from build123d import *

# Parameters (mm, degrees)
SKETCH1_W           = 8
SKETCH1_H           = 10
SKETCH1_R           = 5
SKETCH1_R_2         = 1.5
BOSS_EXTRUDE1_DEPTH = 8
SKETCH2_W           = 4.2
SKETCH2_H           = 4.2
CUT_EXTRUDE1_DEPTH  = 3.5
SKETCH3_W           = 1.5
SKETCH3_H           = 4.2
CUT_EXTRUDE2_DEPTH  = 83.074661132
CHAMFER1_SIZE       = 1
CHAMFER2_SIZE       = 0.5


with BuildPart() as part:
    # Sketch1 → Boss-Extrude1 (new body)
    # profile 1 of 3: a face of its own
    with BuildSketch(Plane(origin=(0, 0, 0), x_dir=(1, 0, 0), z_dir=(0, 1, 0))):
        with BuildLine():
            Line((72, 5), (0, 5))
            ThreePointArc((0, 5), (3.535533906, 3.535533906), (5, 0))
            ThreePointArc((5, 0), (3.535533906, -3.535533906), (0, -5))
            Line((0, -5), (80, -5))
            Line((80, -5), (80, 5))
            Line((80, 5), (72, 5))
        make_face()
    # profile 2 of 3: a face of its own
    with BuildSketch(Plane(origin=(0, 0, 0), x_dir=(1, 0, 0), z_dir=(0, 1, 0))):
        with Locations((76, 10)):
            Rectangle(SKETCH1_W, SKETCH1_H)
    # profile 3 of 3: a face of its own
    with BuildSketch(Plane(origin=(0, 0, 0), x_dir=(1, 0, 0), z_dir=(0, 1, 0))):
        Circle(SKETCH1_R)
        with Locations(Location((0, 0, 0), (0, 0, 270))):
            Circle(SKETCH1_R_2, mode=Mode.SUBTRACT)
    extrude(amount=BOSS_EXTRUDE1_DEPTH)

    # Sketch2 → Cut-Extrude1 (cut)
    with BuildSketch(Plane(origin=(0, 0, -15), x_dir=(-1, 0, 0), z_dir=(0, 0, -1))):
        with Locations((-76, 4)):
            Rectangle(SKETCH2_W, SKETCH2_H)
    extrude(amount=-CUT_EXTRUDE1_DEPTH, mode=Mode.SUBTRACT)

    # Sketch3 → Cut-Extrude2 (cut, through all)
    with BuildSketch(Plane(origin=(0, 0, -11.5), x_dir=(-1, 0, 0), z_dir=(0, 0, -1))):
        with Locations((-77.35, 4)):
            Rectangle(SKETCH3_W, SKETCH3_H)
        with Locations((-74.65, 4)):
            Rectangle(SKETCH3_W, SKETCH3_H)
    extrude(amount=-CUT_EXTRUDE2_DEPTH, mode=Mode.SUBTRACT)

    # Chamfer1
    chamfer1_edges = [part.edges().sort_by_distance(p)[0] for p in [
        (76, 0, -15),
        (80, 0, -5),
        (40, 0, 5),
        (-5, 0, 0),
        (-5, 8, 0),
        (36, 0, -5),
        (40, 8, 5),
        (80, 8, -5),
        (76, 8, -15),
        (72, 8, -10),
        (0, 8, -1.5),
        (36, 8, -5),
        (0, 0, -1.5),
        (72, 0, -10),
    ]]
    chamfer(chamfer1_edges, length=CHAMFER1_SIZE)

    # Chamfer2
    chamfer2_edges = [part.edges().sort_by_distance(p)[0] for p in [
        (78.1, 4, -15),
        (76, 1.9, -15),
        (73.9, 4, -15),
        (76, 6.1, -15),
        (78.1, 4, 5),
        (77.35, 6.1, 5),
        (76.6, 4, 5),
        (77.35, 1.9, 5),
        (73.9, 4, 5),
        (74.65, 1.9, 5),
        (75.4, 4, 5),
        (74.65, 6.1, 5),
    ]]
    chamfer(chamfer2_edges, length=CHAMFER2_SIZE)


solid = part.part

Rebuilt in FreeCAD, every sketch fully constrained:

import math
import FreeCAD as App
import Part
import Sketcher

V = App.Vector


def edges_at(feature, points):
    """Names of the edges that pass closest to the given points."""
    edges = feature.Shape.Edges
    near = lambda p: min(range(len(edges)), key=lambda i: edges[i].distToShape(Part.Vertex(*p))[0])
    return sorted({f"Edge{near(p) + 1}" for p in points})


def add_polygon(sketch, points):
    """Adds a closed chain of lines whose ends are joined by coincident constraints."""
    first, n = sketch.GeometryCount, len(points)
    for a, b in zip(points, points[1:] + points[:1]):
        sketch.addGeometry(Part.LineSegment(App.Vector(*a, 0), App.Vector(*b, 0)), False)
    for i in range(n):
        sketch.addConstraint(Sketcher.Constraint("Coincident", first + i, 2, first + (i + 1) % n, 1))

doc = App.newDocument("Part")
body = doc.addObject("PartDesign::Body", "Body")

sketch1 = doc.addObject("Sketcher::SketchObject", "Sketch")
body.addObject(sketch1)
sketch1.AttachmentSupport = (doc.XZ_Plane, [""])
sketch1.MapMode = "FlatFace"
sketch1.addGeometry([
    Part.LineSegment(V(0, 5, 0), V(80, 5, 0)),
    Part.LineSegment(V(80, 5, 0), V(80, -15, 0)),
    Part.LineSegment(V(80, -15, 0), V(72, -15, 0)),
    Part.LineSegment(V(72, -15, 0), V(72, -5, 0)),
    Part.LineSegment(V(72, -5, 0), V(0, -5, 0)),
    Part.ArcOfCircle(Part.Circle(V(0, 0, 0), V(0, 0, 1), 5), math.radians(90), math.radians(270)),
    Part.Circle(V(0, 0, 0), V(0, 0, 1), 1.5),
], False)
sketch1.addConstraint([
    Sketcher.Constraint("Coincident", 0, 2, 1, 1),
    Sketcher.Constraint("Coincident", 1, 2, 2, 1),
    Sketcher.Constraint("Coincident", 2, 2, 3, 1),
    Sketcher.Constraint("Coincident", 3, 2, 4, 1),
    Sketcher.Constraint("Tangent", 4, 2, 5, 2),
    Sketcher.Constraint("Tangent", 5, 1, 0, 1),
    Sketcher.Constraint("Horizontal", 0),
    Sketcher.Constraint("Vertical", 1),
    Sketcher.Constraint("Horizontal", 2),
    Sketcher.Constraint("Vertical", 3),
    Sketcher.Constraint("Horizontal", 4),
    Sketcher.Constraint("Coincident", 5, 3, -1, 1),
    Sketcher.Constraint("Coincident", 6, 3, -1, 1),
    Sketcher.Constraint("Diameter", 6, 3.0),
    Sketcher.Constraint("Radius", 5, 5.0),
    Sketcher.Constraint("DistanceX", 0, 1, 0, 2, 80.0),
    Sketcher.Constraint("DistanceX", 2, 2, 2, 1, 8.0),
    Sketcher.Constraint("DistanceY", 1, 2, 1, 1, 20.0),
])
pad1 = doc.addObject("PartDesign::Pad", "Pad")
body.addObject(pad1)
pad1.Profile = sketch1
pad1.Length = 8
pad1.Reversed = True

sketch2 = doc.addObject("Sketcher::SketchObject", "Sketch001")
body.addObject(sketch2)
sketch2.AttachmentSupport = (doc.XY_Plane, [""])
sketch2.MapMode = "FlatFace"
sketch2.AttachmentOffset = App.Placement(V(0, 0, -15), App.Rotation())
add_polygon(sketch2, [(78.1, 6.1), (78.1, 1.9), (73.9, 1.9), (73.9, 6.1)])
sketch2.addConstraint([
    Sketcher.Constraint("Vertical", 0),
    Sketcher.Constraint("Horizontal", 1),
    Sketcher.Constraint("Vertical", 2),
    Sketcher.Constraint("Horizontal", 3),
    Sketcher.Constraint("Equal", 3, 0),
    Sketcher.Constraint("DistanceX", 1, 2, 1, 1, 4.2),
    Sketcher.Constraint("DistanceX", -1, 1, 0, 2, 78.1),
    Sketcher.Constraint("DistanceY", -1, 1, 0, 2, 1.9),
])
pocket1 = doc.addObject("PartDesign::Pocket", "Pocket")
body.addObject(pocket1)
pocket1.Profile = sketch2
pocket1.Length = 3.5
pocket1.Reversed = True

sketch3 = doc.addObject("Sketcher::SketchObject", "Sketch002")
body.addObject(sketch3)
sketch3.AttachmentSupport = (doc.XY_Plane, [""])
sketch3.MapMode = "FlatFace"
sketch3.AttachmentOffset = App.Placement(V(0, 0, -11.5), App.Rotation())
add_polygon(sketch3, [(78.1, 6.1), (78.1, 1.9), (76.6, 1.9), (76.6, 6.1)])
add_polygon(sketch3, [(75.4, 6.1), (75.4, 1.9), (73.9, 1.9), (73.9, 6.1)])
sketch3.addConstraint([
    Sketcher.Constraint("Vertical", 0),
    Sketcher.Constraint("Horizontal", 1),
    Sketcher.Constraint("Vertical", 2),
    Sketcher.Constraint("Horizontal", 3),
    Sketcher.Constraint("Vertical", 4),
    Sketcher.Constraint("Horizontal", 5),
    Sketcher.Constraint("Vertical", 6),
    Sketcher.Constraint("Horizontal", 7),
    Sketcher.Constraint("Horizontal", 1, 2, 4, 2),
    Sketcher.Constraint("Horizontal", 3, 2, 6, 2),
    Sketcher.Constraint("Equal", 3, 5),
    Sketcher.Constraint("DistanceX", 1, 2, 1, 1, 1.5),
    Sketcher.Constraint("DistanceY", 0, 2, 0, 1, 4.2),
    Sketcher.Constraint("DistanceX", -1, 1, 0, 2, 78.1),
    Sketcher.Constraint("DistanceY", -1, 1, 0, 2, 1.9),
    Sketcher.Constraint("DistanceX", -1, 1, 4, 2, 75.4),
])
pocket2 = doc.addObject("PartDesign::Pocket", "Pocket001")
body.addObject(pocket2)
pocket2.Profile = sketch3
pocket2.Type = "ThroughAll"
pocket2.Reversed = True
doc.recompute()

chamfer = doc.addObject("PartDesign::Chamfer", "Chamfer")
body.addObject(chamfer)
chamfer.Base = (pocket2, edges_at(pocket2, [
    (76, 0, -15),
    (80, 0, -5),
    (40, 0, 5),
    (-5, 0, 0),
    (-5, 8, 0),
    (36, 0, -5),
    (40, 8, 5),
    (80, 8, -5),
    (76, 8, -15),
    (72, 8, -10),
    (0, 8, -1.5),
    (36, 8, -5),
    (0, 0, -1.5),
    (72, 0, -10),
]))
chamfer.Size = 1
doc.recompute()

chamfer2 = doc.addObject("PartDesign::Chamfer", "Chamfer001")
body.addObject(chamfer2)
chamfer2.Base = (chamfer, edges_at(chamfer, [
    (78.1, 4, -15),
    (76, 1.9, -15),
    (73.9, 4, -15),
    (76, 6.1, -15),
    (78.1, 4, 5),
    (77.35, 6.1, 5),
    (76.6, 4, 5),
    (77.35, 1.9, 5),
    (73.9, 4, 5),
    (74.65, 1.9, 5),
    (75.4, 4, 5),
    (74.65, 6.1, 5),
]))
chamfer2.Size = 0.5

doc.recompute()
